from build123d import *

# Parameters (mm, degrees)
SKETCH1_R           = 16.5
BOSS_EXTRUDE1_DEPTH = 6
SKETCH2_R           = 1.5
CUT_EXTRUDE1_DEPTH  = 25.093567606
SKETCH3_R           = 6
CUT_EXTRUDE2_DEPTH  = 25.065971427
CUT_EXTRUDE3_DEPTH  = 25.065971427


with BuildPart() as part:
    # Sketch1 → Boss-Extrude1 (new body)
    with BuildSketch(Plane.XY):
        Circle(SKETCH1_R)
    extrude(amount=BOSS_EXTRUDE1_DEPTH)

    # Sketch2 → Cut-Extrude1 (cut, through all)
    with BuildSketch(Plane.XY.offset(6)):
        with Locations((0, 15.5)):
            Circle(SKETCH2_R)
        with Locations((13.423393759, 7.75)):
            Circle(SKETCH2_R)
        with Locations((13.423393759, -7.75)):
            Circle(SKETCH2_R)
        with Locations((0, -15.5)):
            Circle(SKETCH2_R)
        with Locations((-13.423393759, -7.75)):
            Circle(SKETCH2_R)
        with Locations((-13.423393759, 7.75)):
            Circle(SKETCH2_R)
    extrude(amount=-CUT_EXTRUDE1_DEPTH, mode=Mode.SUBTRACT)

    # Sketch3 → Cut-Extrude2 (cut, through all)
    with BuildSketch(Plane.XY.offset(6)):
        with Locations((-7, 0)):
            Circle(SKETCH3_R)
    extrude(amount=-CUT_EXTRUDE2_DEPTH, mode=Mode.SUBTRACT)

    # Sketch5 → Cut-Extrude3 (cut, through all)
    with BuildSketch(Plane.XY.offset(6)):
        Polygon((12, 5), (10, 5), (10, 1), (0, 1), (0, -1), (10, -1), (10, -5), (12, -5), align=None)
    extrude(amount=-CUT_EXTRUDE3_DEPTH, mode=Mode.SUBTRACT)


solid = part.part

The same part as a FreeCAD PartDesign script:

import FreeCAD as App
import Part
import Sketcher

V = App.Vector


def add_polygon(sketch, points):
    """Adds a closed chain of lines whose ends are joined by coincident constraints."""
    first, n = sketch.GeometryCount, len(points)
    for a, b in zip(points, points[1:] + points[:1]):
        sketch.addGeometry(Part.LineSegment(App.Vector(*a, 0), App.Vector(*b, 0)), False)
    for i in range(n):
        sketch.addConstraint(Sketcher.Constraint("Coincident", first + i, 2, first + (i + 1) % n, 1))

doc = App.newDocument("Part")
body = doc.addObject("PartDesign::Body", "Body")

sketch1 = body.newObject("Sketcher::SketchObject", "Sketch")
sketch1.AttachmentSupport = (doc.getObject("XY_Plane"), [""])
sketch1.MapMode = "FlatFace"
sketch1.addGeometry(Part.Circle(V(0, 0, 0), V(0, 0, 1), 16.5), False)
sketch1.addConstraint([
    Sketcher.Constraint("Coincident", 0, 3, -1, 1),
    Sketcher.Constraint("Diameter", 0, 33.0),
])
pad1 = body.newObject("PartDesign::Pad", "Pad")
pad1.Profile = sketch1
pad1.Length = 6

sketch2 = body.newObject("Sketcher::SketchObject", "Sketch001")
sketch2.AttachmentSupport = (doc.getObject("XY_Plane"), [""])
sketch2.MapMode = "FlatFace"
sketch2.AttachmentOffset = App.Placement(V(0, 0, 6), App.Rotation())
sketch2.addGeometry([
    Part.Circle(V(0, 15.5, 0), V(0, 0, 1), 1.5),
    Part.Circle(V(13.423394, 7.75, 0), V(0, 0, 1), 1.5),
    Part.Circle(V(13.423394, -7.75, 0), V(0, 0, 1), 1.5),
    Part.Circle(V(0, -15.5, 0), V(0, 0, 1), 1.5),
    Part.Circle(V(-13.423394, -7.75, 0), V(0, 0, 1), 1.5),
    Part.Circle(V(-13.423394, 7.75, 0), V(0, 0, 1), 1.5),
], False)
sketch2.addConstraint([
    Sketcher.Constraint("Equal", 0, 1),
    Sketcher.Constraint("Equal", 1, 2),
    Sketcher.Constraint("Equal", 2, 3),
    Sketcher.Constraint("Equal", 3, 4),
    Sketcher.Constraint("Equal", 4, 5),
    Sketcher.Constraint("Symmetric", 0, 3, 3, 3, -1, 1),
    Sketcher.Constraint("Symmetric", 1, 3, 4, 3, -1, 1),
    Sketcher.Constraint("Symmetric", 2, 3, 5, 3, -1, 1),
    Sketcher.Constraint("Symmetric", 2, 3, 4, 3, -2),
    Sketcher.Constraint("PointOnObject", 0, 3, -2),
    Sketcher.Constraint("Diameter", 0, 3.0),
    Sketcher.Constraint("DistanceY", 3, 3, 0, 3, 31.0),
    Sketcher.Constraint("DistanceY", 2, 3, 1, 3, 15.5),
    Sketcher.Constraint("DistanceX", -1, 1, 1, 3, 13.423394),
])
pocket1 = body.newObject("PartDesign::Pocket", "Pocket")
pocket1.Profile = sketch2
pocket1.Type = "ThroughAll"

sketch3 = body.newObject("Sketcher::SketchObject", "Sketch002")
sketch3.AttachmentSupport = (doc.getObject("XY_Plane"), [""])
sketch3.MapMode = "FlatFace"
sketch3.AttachmentOffset = App.Placement(V(0, 0, 6), App.Rotation())
sketch3.addGeometry(Part.Circle(V(-7, 0, 0), V(0, 0, 1), 6), False)
sketch3.addConstraint([
    Sketcher.Constraint("PointOnObject", 0, 3, -1),
    Sketcher.Constraint("Diameter", 0, 12.0),
    Sketcher.Constraint("DistanceX", 0, 3, -1, 1, 7.0),
])
pocket2 = body.newObject("PartDesign::Pocket", "Pocket001")
pocket2.Profile = sketch3
pocket2.Type = "ThroughAll"

sketch4 = body.newObject("Sketcher::SketchObject", "Sketch003")
sketch4.AttachmentSupport = (doc.getObject("XY_Plane"), [""])
sketch4.MapMode = "FlatFace"
sketch4.AttachmentOffset = App.Placement(V(0, 0, 6), App.Rotation())
add_polygon(sketch4, [(12, 5), (10, 5), (10, 1), (0, 1), (0, -1), (10, -1), (10, -5), (12, -5)])
sketch4.addConstraint([
    Sketcher.Constraint("Horizontal", 0),
    Sketcher.Constraint("Vertical", 1),
    Sketcher.Constraint("Horizontal", 2),
    Sketcher.Constraint("Vertical", 3),
    Sketcher.Constraint("Horizontal", 4),
    Sketcher.Constraint("Vertical", 5),
    Sketcher.Constraint("Horizontal", 6),
    Sketcher.Constraint("Vertical", 7),
    Sketcher.Constraint("Symmetric", 2, 2, 3, 2, -1, 1),
    Sketcher.Constraint("Symmetric", 0, 2, 5, 2, -1),
    Sketcher.Constraint("Equal", 6, 3),
    Sketcher.Constraint("Equal", 4, 7),
    Sketcher.Constraint("DistanceX", 0, 2, 0, 1, 2.0),
    Sketcher.Constraint("DistanceX", 2, 2, 2, 1, 10.0),
])
pocket3 = body.newObject("PartDesign::Pocket", "Pocket002")
pocket3.Profile = sketch4
pocket3.Type = "ThroughAll"

doc.recompute()
